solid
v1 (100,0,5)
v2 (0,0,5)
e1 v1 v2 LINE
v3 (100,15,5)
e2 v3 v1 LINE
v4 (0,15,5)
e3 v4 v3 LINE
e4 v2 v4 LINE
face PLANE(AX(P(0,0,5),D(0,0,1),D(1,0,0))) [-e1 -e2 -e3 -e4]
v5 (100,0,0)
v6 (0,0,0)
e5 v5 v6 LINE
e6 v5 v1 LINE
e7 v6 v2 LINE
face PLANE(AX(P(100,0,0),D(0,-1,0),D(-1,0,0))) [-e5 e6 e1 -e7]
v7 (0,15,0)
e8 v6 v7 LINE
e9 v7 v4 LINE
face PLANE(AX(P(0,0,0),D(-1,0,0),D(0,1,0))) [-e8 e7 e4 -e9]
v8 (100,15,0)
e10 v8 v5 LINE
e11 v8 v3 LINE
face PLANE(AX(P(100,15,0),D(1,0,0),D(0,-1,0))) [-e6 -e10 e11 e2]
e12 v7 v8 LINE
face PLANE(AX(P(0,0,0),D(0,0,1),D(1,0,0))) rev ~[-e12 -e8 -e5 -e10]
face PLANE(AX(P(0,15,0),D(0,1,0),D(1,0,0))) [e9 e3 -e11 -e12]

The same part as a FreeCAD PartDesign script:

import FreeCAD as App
import Part
import Sketcher

V = App.Vector
Q = App.Units.Quantity

doc = App.newDocument("Part")
body = doc.addObject("PartDesign::Body", "Body")

sketch1 = body.newObject("Sketcher::SketchObject", "Sketch")
sketch1.AttachmentSupport = (doc.getObject("XY_Plane"), [""])
sketch1.MapMode = "FlatFace"
sketch1.addGeometry([
    Part.LineSegment(V(0, 15, 0), V(0, 0, 0)),
    Part.LineSegment(V(0, 0, 0), V(100, 0, 0)),
    Part.LineSegment(V(100, 0, 0), V(100, 15, 0)),
    Part.LineSegment(V(100, 15, 0), V(0, 15, 0)),
], False)
sketch1.addConstraint([
    Sketcher.Constraint("Coincident", 0, 2, 1, 1),
    Sketcher.Constraint("Coincident", 1, 2, 2, 1),
    Sketcher.Constraint("Coincident", 2, 2, 3, 1),
    Sketcher.Constraint("Coincident", 3, 2, 0, 1),
    Sketcher.Constraint("Vertical", 0),
    Sketcher.Constraint("Horizontal", 1),
    Sketcher.Constraint("Vertical", 2),
    Sketcher.Constraint("Horizontal", 3),
    Sketcher.Constraint("Coincident", 0, 2, -1, 1),
    Sketcher.Constraint("DistanceX", 1, 1, 1, 2, Q("100 mm")),
    Sketcher.Constraint("DistanceY", 0, 2, 0, 1, Q("15 mm")),
])
pad1 = body.newObject("PartDesign::Pad", "Pad")
pad1.Profile = sketch1
pad1.Length = 5

doc.recompute()
